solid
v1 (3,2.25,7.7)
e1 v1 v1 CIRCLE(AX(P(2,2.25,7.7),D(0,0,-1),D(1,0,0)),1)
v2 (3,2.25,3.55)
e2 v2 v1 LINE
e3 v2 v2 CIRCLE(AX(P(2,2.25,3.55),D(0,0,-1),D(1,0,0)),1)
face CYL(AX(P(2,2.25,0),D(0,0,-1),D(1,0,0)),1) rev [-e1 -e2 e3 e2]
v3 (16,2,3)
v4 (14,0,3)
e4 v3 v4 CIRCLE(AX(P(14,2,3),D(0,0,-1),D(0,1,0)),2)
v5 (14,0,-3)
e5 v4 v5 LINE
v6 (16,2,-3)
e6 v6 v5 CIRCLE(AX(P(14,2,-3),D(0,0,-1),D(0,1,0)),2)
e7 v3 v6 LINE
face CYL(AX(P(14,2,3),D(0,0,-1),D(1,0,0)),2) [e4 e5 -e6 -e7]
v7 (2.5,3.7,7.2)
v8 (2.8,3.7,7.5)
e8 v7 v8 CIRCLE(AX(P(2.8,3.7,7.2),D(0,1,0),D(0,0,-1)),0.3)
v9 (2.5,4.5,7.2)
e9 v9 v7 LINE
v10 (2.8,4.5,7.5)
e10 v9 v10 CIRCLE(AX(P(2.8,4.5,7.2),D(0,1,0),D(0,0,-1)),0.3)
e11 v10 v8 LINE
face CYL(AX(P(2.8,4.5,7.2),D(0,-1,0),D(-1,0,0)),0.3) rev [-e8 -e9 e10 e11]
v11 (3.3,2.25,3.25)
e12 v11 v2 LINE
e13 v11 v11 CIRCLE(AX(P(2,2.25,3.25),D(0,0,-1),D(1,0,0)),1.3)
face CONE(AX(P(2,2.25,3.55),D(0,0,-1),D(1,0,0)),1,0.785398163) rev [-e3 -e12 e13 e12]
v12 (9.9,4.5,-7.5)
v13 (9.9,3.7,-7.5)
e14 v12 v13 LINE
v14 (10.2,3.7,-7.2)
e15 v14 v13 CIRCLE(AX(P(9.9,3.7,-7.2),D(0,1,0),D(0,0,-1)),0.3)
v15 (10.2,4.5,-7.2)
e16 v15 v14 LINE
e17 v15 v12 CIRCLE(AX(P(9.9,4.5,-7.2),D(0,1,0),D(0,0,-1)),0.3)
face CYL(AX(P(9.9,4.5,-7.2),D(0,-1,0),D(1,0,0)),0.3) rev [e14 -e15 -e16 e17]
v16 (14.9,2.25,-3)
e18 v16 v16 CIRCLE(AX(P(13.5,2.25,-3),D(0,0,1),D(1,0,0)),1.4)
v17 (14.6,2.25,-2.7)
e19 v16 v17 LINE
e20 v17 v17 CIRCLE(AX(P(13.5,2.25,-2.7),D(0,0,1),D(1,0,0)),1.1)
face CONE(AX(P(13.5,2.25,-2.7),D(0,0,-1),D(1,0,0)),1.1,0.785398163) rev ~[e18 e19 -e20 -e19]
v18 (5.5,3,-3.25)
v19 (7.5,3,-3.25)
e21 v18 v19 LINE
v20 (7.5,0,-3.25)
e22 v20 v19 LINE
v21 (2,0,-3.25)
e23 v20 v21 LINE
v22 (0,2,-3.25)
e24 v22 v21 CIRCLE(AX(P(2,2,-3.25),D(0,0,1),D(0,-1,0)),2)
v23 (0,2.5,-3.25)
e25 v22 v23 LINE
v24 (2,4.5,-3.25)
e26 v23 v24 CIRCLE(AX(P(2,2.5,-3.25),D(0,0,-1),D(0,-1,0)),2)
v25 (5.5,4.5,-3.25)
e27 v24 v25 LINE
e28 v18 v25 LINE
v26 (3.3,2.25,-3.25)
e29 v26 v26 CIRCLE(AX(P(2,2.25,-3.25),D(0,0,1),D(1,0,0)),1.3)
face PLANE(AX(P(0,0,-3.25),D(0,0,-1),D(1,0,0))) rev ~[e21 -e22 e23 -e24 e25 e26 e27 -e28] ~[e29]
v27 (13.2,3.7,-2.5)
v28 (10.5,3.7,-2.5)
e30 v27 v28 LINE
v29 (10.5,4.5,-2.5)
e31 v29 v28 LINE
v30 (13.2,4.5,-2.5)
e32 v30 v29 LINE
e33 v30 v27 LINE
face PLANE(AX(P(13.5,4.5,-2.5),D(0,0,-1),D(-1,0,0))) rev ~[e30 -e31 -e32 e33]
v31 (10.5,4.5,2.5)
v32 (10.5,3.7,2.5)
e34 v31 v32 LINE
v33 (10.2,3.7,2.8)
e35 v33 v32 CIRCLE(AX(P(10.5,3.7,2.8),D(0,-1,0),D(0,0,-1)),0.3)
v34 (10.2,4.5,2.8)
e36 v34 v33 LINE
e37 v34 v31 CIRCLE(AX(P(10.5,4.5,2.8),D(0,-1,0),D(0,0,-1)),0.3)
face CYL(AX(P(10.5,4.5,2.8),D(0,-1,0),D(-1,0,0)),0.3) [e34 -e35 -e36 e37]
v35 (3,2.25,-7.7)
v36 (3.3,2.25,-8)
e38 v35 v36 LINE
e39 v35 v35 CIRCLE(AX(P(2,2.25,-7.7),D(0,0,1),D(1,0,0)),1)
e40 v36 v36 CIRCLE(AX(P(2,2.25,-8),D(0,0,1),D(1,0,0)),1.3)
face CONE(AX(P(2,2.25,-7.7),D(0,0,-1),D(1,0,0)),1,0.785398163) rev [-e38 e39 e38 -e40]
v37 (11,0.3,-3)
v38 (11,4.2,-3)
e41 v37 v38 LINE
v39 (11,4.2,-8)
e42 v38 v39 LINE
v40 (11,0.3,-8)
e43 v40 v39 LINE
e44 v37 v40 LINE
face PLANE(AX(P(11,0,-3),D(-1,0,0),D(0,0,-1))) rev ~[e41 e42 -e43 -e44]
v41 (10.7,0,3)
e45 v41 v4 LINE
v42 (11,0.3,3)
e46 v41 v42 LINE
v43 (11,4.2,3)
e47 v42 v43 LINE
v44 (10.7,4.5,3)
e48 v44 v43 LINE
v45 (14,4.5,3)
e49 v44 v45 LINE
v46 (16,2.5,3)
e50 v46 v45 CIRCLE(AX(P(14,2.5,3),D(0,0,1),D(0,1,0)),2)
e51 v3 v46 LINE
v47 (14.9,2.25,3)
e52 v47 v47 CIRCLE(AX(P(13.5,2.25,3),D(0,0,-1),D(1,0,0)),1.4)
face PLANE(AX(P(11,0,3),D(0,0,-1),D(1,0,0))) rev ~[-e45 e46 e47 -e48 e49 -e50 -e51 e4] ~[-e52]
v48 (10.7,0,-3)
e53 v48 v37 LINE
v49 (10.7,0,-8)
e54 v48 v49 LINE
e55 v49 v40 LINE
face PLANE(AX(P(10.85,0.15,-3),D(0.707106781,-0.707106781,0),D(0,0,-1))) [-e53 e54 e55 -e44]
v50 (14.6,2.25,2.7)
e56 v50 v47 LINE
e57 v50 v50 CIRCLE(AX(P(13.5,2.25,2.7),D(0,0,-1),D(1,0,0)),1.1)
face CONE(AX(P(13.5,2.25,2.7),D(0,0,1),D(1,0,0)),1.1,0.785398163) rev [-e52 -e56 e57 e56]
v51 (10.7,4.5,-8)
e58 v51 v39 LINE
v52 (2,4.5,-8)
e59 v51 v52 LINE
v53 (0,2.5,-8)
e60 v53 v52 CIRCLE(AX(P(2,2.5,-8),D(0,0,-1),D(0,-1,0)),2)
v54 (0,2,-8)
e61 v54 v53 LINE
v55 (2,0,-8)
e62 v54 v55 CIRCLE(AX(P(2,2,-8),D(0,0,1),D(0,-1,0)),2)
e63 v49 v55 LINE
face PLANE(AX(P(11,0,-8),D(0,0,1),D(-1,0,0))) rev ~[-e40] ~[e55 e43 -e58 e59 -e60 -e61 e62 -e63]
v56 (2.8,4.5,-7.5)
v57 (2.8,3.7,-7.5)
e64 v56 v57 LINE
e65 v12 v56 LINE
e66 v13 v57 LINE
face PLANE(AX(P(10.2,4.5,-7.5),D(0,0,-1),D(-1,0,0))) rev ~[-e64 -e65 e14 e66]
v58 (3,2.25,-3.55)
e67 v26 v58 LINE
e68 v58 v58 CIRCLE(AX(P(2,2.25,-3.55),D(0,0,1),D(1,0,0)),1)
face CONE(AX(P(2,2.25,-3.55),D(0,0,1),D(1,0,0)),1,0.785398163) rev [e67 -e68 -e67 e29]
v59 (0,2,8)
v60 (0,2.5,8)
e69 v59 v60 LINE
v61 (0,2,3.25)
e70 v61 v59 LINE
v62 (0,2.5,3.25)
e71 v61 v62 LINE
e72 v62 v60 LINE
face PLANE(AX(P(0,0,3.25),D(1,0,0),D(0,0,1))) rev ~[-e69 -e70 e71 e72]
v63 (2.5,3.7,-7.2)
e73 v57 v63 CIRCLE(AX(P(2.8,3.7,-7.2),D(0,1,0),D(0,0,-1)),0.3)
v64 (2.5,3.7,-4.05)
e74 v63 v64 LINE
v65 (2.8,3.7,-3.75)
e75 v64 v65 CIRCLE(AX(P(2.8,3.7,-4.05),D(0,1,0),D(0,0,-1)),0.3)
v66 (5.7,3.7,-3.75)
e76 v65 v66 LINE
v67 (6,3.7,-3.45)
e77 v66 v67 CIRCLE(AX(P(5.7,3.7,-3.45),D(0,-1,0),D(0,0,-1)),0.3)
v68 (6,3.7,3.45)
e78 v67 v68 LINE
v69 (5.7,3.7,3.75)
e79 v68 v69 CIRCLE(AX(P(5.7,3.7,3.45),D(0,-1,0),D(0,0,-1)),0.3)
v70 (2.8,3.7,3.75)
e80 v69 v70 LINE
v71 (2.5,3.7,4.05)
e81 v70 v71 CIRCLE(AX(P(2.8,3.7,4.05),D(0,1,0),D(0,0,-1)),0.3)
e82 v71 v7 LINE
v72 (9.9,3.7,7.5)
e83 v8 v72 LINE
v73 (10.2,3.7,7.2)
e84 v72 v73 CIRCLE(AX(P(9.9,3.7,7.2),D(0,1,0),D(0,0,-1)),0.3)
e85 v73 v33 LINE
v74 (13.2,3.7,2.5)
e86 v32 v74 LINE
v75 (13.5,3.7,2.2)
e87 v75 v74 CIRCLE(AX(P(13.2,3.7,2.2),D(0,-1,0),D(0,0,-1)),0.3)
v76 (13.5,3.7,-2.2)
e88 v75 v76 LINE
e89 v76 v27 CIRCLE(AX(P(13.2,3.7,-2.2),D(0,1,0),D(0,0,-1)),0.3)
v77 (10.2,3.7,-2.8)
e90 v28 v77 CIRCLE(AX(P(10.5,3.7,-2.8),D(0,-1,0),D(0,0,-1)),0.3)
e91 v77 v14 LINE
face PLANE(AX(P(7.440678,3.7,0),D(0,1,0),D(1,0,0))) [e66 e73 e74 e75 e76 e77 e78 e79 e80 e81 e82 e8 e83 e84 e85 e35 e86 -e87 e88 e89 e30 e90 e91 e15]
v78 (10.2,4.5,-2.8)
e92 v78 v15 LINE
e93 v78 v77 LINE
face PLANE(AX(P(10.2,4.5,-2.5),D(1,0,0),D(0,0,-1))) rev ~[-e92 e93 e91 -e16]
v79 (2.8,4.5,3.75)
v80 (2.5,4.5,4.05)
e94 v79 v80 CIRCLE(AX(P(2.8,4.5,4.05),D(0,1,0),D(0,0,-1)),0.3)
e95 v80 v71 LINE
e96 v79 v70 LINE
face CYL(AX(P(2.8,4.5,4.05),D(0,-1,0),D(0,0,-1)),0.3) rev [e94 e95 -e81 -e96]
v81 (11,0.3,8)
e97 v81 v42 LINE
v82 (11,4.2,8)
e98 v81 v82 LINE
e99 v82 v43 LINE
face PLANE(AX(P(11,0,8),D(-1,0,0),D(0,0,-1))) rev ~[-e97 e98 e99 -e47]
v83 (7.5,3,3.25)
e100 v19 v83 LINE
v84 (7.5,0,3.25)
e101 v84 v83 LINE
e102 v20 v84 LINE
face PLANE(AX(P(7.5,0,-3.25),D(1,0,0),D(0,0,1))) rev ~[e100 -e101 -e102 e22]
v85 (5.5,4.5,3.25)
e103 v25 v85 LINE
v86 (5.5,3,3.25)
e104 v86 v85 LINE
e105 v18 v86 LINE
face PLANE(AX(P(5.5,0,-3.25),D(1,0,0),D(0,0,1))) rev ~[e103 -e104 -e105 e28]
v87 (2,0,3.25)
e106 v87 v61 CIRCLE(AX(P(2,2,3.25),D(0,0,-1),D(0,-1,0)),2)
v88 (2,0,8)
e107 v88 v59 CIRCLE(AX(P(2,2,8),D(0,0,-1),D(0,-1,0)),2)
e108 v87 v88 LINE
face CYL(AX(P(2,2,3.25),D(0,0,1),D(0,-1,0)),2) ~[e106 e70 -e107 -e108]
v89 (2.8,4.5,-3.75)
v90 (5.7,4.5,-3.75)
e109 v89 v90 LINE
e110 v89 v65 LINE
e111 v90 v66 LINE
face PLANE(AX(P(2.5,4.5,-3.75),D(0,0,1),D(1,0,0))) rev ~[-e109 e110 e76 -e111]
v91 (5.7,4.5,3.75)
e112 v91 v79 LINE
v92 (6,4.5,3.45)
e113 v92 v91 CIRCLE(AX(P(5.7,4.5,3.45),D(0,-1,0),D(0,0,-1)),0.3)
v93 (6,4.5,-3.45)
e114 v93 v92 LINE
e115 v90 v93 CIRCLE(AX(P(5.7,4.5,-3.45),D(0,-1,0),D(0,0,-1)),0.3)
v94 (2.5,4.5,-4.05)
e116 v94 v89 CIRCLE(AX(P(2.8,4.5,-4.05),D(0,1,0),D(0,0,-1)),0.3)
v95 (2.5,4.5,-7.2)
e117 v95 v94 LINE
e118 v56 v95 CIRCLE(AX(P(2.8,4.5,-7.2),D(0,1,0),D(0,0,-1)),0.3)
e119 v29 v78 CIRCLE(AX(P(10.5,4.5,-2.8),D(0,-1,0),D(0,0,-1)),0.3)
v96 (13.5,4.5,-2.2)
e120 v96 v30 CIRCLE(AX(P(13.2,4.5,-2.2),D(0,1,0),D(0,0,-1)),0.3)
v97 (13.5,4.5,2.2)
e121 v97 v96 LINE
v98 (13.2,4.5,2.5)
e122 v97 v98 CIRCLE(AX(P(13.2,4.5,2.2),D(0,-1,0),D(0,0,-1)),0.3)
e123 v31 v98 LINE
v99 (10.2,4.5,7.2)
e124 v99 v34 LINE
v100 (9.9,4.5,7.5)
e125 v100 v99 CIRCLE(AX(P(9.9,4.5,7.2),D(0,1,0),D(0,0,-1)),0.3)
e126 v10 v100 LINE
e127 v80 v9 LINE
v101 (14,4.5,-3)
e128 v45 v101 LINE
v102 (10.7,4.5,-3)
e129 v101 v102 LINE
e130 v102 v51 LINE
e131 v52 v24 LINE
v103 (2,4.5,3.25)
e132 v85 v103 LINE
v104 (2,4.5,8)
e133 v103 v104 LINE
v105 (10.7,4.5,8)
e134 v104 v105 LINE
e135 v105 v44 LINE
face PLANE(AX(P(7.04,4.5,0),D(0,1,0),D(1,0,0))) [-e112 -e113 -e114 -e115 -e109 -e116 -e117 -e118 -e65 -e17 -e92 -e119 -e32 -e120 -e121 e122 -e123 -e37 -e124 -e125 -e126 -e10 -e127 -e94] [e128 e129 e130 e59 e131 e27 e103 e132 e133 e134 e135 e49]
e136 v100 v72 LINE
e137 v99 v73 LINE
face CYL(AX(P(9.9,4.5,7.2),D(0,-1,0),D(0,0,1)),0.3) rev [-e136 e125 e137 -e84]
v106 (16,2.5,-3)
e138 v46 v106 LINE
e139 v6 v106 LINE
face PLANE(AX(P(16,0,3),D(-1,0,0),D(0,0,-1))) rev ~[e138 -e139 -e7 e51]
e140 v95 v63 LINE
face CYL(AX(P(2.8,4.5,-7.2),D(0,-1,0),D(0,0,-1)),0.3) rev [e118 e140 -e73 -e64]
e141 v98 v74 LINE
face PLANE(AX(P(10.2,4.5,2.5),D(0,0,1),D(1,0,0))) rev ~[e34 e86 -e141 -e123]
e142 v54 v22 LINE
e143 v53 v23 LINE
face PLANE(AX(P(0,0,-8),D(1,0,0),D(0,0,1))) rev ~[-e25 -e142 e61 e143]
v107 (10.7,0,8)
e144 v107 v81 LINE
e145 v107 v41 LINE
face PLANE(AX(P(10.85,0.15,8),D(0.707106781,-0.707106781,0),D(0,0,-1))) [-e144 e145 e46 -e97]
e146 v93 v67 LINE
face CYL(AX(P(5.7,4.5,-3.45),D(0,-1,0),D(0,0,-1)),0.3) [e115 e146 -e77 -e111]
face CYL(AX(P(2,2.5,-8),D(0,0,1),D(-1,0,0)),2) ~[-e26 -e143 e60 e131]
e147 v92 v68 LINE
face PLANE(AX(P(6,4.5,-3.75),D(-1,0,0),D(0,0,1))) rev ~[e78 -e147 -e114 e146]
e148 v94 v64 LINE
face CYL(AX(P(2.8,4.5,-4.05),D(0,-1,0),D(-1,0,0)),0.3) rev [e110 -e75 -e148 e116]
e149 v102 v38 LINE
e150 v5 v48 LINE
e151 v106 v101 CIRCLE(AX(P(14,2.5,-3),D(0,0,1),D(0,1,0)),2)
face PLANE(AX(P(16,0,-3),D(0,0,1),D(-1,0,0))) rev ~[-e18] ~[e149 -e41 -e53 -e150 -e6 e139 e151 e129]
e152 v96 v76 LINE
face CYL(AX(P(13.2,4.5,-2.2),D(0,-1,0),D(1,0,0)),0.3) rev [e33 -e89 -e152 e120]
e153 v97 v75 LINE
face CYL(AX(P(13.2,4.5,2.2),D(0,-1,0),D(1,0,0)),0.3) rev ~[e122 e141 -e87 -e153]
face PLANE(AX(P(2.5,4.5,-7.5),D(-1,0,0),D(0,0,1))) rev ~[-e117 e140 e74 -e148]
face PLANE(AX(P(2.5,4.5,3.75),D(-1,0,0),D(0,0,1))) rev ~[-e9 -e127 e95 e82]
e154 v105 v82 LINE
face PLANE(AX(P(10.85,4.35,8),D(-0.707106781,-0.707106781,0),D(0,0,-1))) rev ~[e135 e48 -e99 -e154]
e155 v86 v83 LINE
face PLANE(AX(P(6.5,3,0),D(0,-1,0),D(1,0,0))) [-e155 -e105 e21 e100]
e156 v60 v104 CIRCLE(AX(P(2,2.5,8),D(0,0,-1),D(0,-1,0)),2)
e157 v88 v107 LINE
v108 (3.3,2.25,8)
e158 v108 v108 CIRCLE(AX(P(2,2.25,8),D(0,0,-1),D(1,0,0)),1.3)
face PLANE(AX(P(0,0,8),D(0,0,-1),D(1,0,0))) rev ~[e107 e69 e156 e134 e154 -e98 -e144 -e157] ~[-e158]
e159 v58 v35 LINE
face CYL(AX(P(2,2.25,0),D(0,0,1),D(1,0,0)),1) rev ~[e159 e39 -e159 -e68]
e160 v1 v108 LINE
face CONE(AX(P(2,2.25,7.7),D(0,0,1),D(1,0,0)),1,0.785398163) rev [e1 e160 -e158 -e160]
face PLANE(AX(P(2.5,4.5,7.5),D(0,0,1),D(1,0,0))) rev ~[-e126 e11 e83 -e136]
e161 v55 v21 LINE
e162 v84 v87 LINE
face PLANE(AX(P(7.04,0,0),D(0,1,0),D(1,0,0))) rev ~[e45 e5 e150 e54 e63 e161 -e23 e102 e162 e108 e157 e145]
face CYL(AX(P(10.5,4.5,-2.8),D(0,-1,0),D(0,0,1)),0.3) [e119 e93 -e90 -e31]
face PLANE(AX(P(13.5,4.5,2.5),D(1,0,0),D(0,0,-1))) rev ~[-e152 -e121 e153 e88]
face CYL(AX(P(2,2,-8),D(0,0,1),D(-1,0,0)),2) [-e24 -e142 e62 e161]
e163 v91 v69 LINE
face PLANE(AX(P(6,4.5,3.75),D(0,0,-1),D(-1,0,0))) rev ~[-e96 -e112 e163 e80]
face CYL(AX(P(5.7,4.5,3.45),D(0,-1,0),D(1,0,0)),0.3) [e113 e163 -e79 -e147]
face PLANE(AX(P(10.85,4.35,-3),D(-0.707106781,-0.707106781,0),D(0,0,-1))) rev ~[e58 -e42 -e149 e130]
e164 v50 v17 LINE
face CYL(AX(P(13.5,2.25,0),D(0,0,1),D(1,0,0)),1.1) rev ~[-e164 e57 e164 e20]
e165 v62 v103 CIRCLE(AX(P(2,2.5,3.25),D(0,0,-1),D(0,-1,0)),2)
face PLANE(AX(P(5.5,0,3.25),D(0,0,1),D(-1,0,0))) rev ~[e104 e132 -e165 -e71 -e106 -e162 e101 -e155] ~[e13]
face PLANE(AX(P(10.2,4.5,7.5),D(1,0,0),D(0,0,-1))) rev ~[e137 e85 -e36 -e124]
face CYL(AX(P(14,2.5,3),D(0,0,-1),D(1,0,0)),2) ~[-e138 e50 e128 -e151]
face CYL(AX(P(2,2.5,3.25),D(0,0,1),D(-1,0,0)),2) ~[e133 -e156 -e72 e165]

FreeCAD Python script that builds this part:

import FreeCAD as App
import Part
import Sketcher
from FreeCAD import Vector


def edges_at(feature, points):
    """Names of the edges that pass closest to the given points."""
    edges = feature.Shape.Edges
    near = lambda p: min(range(len(edges)), key=lambda i: edges[i].distToShape(Part.Vertex(*p))[0])
    return sorted({f"Edge{near(p) + 1}" for p in points})


def add_polygon(sketch, points):
    """Adds a closed chain of lines whose ends are joined by coincident constraints."""
    first, n = sketch.GeometryCount, len(points)
    for a, b in zip(points, points[1:] + points[:1]):
        sketch.addGeometry(Part.LineSegment(App.Vector(*a, 0), App.Vector(*b, 0)), False)
    for i in range(n):
        sketch.addConstraint(Sketcher.Constraint("Coincident", first + i, 2, first + (i + 1) % n, 1))

doc = App.newDocument("Part")
body = doc.addObject("PartDesign::Body", "Body")

# Sketch on XZ plane
sketch1 = body.newObject("Sketcher::SketchObject", "Sketch")
sketch1.AttachmentSupport = (doc.getObject("XZ_Plane"), [""])
sketch1.MapMode = "FlatFace"
add_polygon(sketch1, [(5.5, -3.25), (5.5, 3.25), (0, 3.25), (0, 8), (11, 8), (11, 3), (16, 3), (16, -3), (11, -3), (11, -8), (0, -8), (0, -3.25)])  # lines 0-11
sketch1.addConstraint(Sketcher.Constraint("Vertical", 0))
sketch1.addConstraint(Sketcher.Constraint("Horizontal", 1))
sketch1.addConstraint(Sketcher.Constraint("Vertical", 2))
sketch1.addConstraint(Sketcher.Constraint("Horizontal", 3))
sketch1.addConstraint(Sketcher.Constraint("Vertical", 4))
sketch1.addConstraint(Sketcher.Constraint("Horizontal", 5))
sketch1.addConstraint(Sketcher.Constraint("Vertical", 6))
sketch1.addConstraint(Sketcher.Constraint("Horizontal", 7))
sketch1.addConstraint(Sketcher.Constraint("Vertical", 8))
sketch1.addConstraint(Sketcher.Constraint("Horizontal", 9))
sketch1.addConstraint(Sketcher.Constraint("Vertical", 10))
sketch1.addConstraint(Sketcher.Constraint("Horizontal", 11))
sketch1.addConstraint(Sketcher.Constraint("Symmetric", 2, 2, 9, 2, -1, 1))
sketch1.addConstraint(Sketcher.Constraint("Symmetric", 4, 2, 7, 2, -1))
sketch1.addConstraint(Sketcher.Constraint("Symmetric", 1, 2, 10, 2, -1))
sketch1.addConstraint(Sketcher.Constraint("Equal", 7, 4))
sketch1.addConstraint(Sketcher.Constraint("DistanceX", 3, 1, 3, 2, 11.0))
sketch1.addConstraint(Sketcher.Constraint("DistanceX", 5, 1, 5, 2, 5.0))
sketch1.addConstraint(Sketcher.Constraint("DistanceY", 6, 2, 6, 1, 6.0))
sketch1.addConstraint(Sketcher.Constraint("DistanceX", 1, 2, 1, 1, 5.5))
sketch1.addConstraint(Sketcher.Constraint("DistanceY", 0, 1, 0, 2, 6.5))
pad1 = body.newObject("PartDesign::Pad", "Pad")
pad1.Profile = sketch1
pad1.Length = 4.5
pad1.Reversed = True

# Sketch on XY plane
sketch2 = body.newObject("Sketcher::SketchObject", "Sketch001")
sketch2.AttachmentSupport = (doc.getObject("XY_Plane"), [""])
sketch2.MapMode = "FlatFace"
sketch2.addGeometry(Part.Circle(Vector(2, 2.25, 0), Vector(0, 0, 1), 1), False)
sketch2.addGeometry(Part.Circle(Vector(13.5, 2.25, 0), Vector(0, 0, 1), 1.1), False)
sketch2.addConstraint(Sketcher.Constraint("Horizontal", 0, 3, 1, 3))
sketch2.addConstraint(Sketcher.Constraint("Diameter", 0, 2.0))
sketch2.addConstraint(Sketcher.Constraint("Diameter", 1, 2.2))
sketch2.addConstraint(Sketcher.Constraint("DistanceX", -1, 1, 0, 3, 2.0))
sketch2.addConstraint(Sketcher.Constraint("DistanceX", -1, 1, 1, 3, 13.5))
sketch2.addConstraint(Sketcher.Constraint("DistanceY", -1, 1, 0, 3, 2.25))
pocket1 = body.newObject("PartDesign::Pocket", "Pocket")
pocket1.Profile = sketch2
pocket1.Type = "ThroughAll"
pocket1.Midplane = True

# Sketch on XZ plane
sketch3 = body.newObject("Sketcher::SketchObject", "Sketch002")
sketch3.AttachmentSupport = (doc.getObject("XZ_Plane"), [""])
sketch3.MapMode = "FlatFace"
add_polygon(sketch3, [(5.5, 3.25), (5.5, -3.25), (7.5, -3.25), (7.5, 3.25)])  # lines 0-3
sketch3.addConstraint(Sketcher.Constraint("Vertical", 0))
sketch3.addConstraint(Sketcher.Constraint("Horizontal", 1))
sketch3.addConstraint(Sketcher.Constraint("Vertical", 2))
sketch3.addConstraint(Sketcher.Constraint("Horizontal", 3))
sketch3.addConstraint(Sketcher.Constraint("DistanceX", 1, 1, 1, 2, 2.0))
sketch3.addConstraint(Sketcher.Constraint("DistanceY", 0, 2, 0, 1, 6.5))
sketch3.addConstraint(Sketcher.Constraint("DistanceX", -1, 1, 0, 2, 5.5))
sketch3.addConstraint(Sketcher.Constraint("DistanceY", 0, 2, -1, 1, 3.25))
pocket2 = body.newObject("PartDesign::Pocket", "Pocket001")
pocket2.Profile = sketch3
pocket2.Length = 3
doc.recompute()

fillet = body.newObject("PartDesign::Fillet", "Fillet")
fillet.Base = (pocket2, edges_at(pocket2, [
    (0, 0, -5.625),
    (16, 0, 0),
    (0, 0, 5.625),
    (16, 4.5, 0),
    (0, 4.5, -5.625),
    (0, 4.5, 5.625),
]))
fillet.Radius = 2
doc.recompute()

chamfer = body.newObject("PartDesign::Chamfer", "Chamfer")
chamfer.Base = (fillet, edges_at(fillet, [
    (11, 0, -5.5),
    (11, 4.5, 5.5),
    (11, 0, 5.5),
    (11, 4.5, -5.5),
]))
chamfer.Size = 0.3
doc.recompute()

chamfer2 = body.newObject("PartDesign::Chamfer", "Chamfer001")
chamfer2.Base = (chamfer, edges_at(chamfer, [
    (1, 2.25, 3.25),
    (1, 2.25, -8),
    (1, 2.25, -3.25),
    (1, 2.25, 8),
    (12.4, 2.25, -3),
    (12.4, 2.25, 3),
]))
chamfer2.Size = 0.3

# Sketch on XZ plane
sketch4 = body.newObject("Sketcher::SketchObject", "Sketch003")
sketch4.AttachmentSupport = (doc.getObject("XZ_Plane"), [""])
sketch4.MapMode = "FlatFace"
sketch4.AttachmentOffset = App.Placement(Vector(0, 0, -4.5), App.Rotation())
add_polygon(sketch4, [(13.5, 2.5), (13.5, -2.5), (10.2, -2.5), (10.2, -7.5), (2.5, -7.5), (2.5, -3.75), (6, -3.75), (6, 3.75), (2.5, 3.75), (2.5, 7.5), (10.2, 7.5), (10.2, 2.5)])  # lines 0-11
sketch4.addConstraint(Sketcher.Constraint("Vertical", 0))
sketch4.addConstraint(Sketcher.Constraint("Horizontal", 1))
sketch4.addConstraint(Sketcher.Constraint("Vertical", 2))
sketch4.addConstraint(Sketcher.Constraint("Horizontal", 3))
sketch4.addConstraint(Sketcher.Constraint("Vertical", 4))
sketch4.addConstraint(Sketcher.Constraint("Horizontal", 5))
sketch4.addConstraint(Sketcher.Constraint("Vertical", 6))
sketch4.addConstraint(Sketcher.Constraint("Horizontal", 7))
sketch4.addConstraint(Sketcher.Constraint("Vertical", 8))
sketch4.addConstraint(Sketcher.Constraint("Horizontal", 9))
sketch4.addConstraint(Sketcher.Constraint("Vertical", 10))
sketch4.addConstraint(Sketcher.Constraint("Horizontal", 11))
sketch4.addConstraint(Sketcher.Constraint("Symmetric", 4, 2, 7, 2, -1))
sketch4.addConstraint(Sketcher.Constraint("Symmetric", 2, 2, 9, 2, -1))
sketch4.addConstraint(Sketcher.Constraint("Equal", 0, 2))
sketch4.addConstraint(Sketcher.Constraint("Equal", 2, 10))
sketch4.addConstraint(Sketcher.Constraint("DistanceY", 0, 2, 0, 1, 5.0))
sketch4.addConstraint(Sketcher.Constraint("DistanceX", 1, 2, 1, 1, 3.3))
sketch4.addConstraint(Sketcher.Constraint("DistanceX", 3, 2, 3, 1, 7.7))
sketch4.addConstraint(Sketcher.Constraint("DistanceX", 5, 1, 5, 2, 3.5))
sketch4.addConstraint(Sketcher.Constraint("DistanceY", 6, 1, 6, 2, 7.5))
sketch4.addConstraint(Sketcher.Constraint("DistanceX", -1, 1, 5, 2, 6.0))
pocket3 = body.newObject("PartDesign::Pocket", "Pocket002")
pocket3.Profile = sketch4
pocket3.Length = 0.8
pocket3.Reversed = True
doc.recompute()

fillet2 = body.newObject("PartDesign::Fillet", "Fillet001")
fillet2.Base = (pocket3, edges_at(pocket3, [
    (13.5, 4.1, 2.5),
    (10.2, 4.1, 2.5),
    (10.2, 4.1, 7.5),
    (2.5, 4.1, 7.5),
    (2.5, 4.1, 3.75),
    (6, 4.1, 3.75),
    (6, 4.1, -3.75),
    (2.5, 4.1, -3.75),
    (2.5, 4.1, -7.5),
    (10.2, 4.1, -7.5),
    (10.2, 4.1, -2.5),
    (13.5, 4.1, -2.5),
]))
fillet2.Radius = 0.3

doc.recompute()
